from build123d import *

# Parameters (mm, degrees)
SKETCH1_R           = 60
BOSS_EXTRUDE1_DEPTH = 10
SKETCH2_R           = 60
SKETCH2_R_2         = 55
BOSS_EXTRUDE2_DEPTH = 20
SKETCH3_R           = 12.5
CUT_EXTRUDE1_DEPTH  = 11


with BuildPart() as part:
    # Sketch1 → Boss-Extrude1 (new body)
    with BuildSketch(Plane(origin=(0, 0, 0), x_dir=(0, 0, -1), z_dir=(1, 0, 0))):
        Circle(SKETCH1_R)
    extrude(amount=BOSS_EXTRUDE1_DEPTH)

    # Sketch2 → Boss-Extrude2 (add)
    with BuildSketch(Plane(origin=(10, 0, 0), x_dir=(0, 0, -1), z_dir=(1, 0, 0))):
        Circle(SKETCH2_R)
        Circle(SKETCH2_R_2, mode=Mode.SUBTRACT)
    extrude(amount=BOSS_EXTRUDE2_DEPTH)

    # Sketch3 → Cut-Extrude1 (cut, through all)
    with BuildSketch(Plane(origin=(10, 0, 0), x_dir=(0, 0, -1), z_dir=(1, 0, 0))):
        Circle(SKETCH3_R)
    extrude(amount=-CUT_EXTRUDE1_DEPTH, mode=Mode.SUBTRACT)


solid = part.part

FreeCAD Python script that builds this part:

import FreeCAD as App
import Part
import Sketcher
from FreeCAD import Vector
Q = App.Units.Quantity

doc = App.newDocument("Part")
body = doc.addObject("PartDesign::Body", "Body")

# Sketch on YZ plane
sketch1 = doc.addObject("Sketcher::SketchObject", "Sketch")
body.addObject(sketch1)
sketch1.AttachmentSupport = (doc.YZ_Plane, [""])
sketch1.MapMode = "FlatFace"
sketch1.addGeometry(Part.Circle(Vector(0, 0, 0), Vector(0, 0, 1), 60), False)
sketch1.addConstraint(Sketcher.Constraint("Coincident", 0, 3, -1, 1))
sketch1.addConstraint(Sketcher.Constraint("Diameter", 0, Q("120 mm")))
pad1 = doc.addObject("PartDesign::Pad", "Pad")
body.addObject(pad1)
pad1.Profile = sketch1
pad1.Length = 10

# Sketch on YZ plane
sketch2 = doc.addObject("Sketcher::SketchObject", "Sketch001")
body.addObject(sketch2)
sketch2.AttachmentSupport = (doc.YZ_Plane, [""])
sketch2.MapMode = "FlatFace"
sketch2.AttachmentOffset = App.Placement(Vector(0, 0, 10), App.Rotation())
sketch2.addGeometry(Part.Circle(Vector(0, 0, 0), Vector(0, 0, 1), 60), False)
sketch2.addGeometry(Part.Circle(Vector(0, 0, 0), Vector(0, 0, 1), 55), False)
sketch2.addConstraint(Sketcher.Constraint("Coincident", 0, 3, -1, 1))
sketch2.addConstraint(Sketcher.Constraint("Coincident", 1, 3, -1, 1))
sketch2.addConstraint(Sketcher.Constraint("Diameter", 0, Q("120 mm")))
sketch2.addConstraint(Sketcher.Constraint("Diameter", 1, Q("110 mm")))
pad2 = doc.addObject("PartDesign::Pad", "Pad001")
body.addObject(pad2)
pad2.Profile = sketch2
pad2.Length = 20

# Sketch on YZ plane
sketch3 = doc.addObject("Sketcher::SketchObject", "Sketch002")
body.addObject(sketch3)
sketch3.AttachmentSupport = (doc.YZ_Plane, [""])
sketch3.MapMode = "FlatFace"
sketch3.AttachmentOffset = App.Placement(Vector(0, 0, 10), App.Rotation())
sketch3.addGeometry(Part.Circle(Vector(0, 0, 0), Vector(0, 0, 1), 12), False)
sketch3.addConstraint(Sketcher.Constraint("Coincident", 0, 3, -1, 1))
sketch3.addConstraint(Sketcher.Constraint("Diameter", 0, Q("25 mm")))
pocket1 = doc.addObject("PartDesign::Pocket", "Pocket")
body.addObject(pocket1)
pocket1.Profile = sketch3
pocket1.Type = "ThroughAll"

doc.recompute()
